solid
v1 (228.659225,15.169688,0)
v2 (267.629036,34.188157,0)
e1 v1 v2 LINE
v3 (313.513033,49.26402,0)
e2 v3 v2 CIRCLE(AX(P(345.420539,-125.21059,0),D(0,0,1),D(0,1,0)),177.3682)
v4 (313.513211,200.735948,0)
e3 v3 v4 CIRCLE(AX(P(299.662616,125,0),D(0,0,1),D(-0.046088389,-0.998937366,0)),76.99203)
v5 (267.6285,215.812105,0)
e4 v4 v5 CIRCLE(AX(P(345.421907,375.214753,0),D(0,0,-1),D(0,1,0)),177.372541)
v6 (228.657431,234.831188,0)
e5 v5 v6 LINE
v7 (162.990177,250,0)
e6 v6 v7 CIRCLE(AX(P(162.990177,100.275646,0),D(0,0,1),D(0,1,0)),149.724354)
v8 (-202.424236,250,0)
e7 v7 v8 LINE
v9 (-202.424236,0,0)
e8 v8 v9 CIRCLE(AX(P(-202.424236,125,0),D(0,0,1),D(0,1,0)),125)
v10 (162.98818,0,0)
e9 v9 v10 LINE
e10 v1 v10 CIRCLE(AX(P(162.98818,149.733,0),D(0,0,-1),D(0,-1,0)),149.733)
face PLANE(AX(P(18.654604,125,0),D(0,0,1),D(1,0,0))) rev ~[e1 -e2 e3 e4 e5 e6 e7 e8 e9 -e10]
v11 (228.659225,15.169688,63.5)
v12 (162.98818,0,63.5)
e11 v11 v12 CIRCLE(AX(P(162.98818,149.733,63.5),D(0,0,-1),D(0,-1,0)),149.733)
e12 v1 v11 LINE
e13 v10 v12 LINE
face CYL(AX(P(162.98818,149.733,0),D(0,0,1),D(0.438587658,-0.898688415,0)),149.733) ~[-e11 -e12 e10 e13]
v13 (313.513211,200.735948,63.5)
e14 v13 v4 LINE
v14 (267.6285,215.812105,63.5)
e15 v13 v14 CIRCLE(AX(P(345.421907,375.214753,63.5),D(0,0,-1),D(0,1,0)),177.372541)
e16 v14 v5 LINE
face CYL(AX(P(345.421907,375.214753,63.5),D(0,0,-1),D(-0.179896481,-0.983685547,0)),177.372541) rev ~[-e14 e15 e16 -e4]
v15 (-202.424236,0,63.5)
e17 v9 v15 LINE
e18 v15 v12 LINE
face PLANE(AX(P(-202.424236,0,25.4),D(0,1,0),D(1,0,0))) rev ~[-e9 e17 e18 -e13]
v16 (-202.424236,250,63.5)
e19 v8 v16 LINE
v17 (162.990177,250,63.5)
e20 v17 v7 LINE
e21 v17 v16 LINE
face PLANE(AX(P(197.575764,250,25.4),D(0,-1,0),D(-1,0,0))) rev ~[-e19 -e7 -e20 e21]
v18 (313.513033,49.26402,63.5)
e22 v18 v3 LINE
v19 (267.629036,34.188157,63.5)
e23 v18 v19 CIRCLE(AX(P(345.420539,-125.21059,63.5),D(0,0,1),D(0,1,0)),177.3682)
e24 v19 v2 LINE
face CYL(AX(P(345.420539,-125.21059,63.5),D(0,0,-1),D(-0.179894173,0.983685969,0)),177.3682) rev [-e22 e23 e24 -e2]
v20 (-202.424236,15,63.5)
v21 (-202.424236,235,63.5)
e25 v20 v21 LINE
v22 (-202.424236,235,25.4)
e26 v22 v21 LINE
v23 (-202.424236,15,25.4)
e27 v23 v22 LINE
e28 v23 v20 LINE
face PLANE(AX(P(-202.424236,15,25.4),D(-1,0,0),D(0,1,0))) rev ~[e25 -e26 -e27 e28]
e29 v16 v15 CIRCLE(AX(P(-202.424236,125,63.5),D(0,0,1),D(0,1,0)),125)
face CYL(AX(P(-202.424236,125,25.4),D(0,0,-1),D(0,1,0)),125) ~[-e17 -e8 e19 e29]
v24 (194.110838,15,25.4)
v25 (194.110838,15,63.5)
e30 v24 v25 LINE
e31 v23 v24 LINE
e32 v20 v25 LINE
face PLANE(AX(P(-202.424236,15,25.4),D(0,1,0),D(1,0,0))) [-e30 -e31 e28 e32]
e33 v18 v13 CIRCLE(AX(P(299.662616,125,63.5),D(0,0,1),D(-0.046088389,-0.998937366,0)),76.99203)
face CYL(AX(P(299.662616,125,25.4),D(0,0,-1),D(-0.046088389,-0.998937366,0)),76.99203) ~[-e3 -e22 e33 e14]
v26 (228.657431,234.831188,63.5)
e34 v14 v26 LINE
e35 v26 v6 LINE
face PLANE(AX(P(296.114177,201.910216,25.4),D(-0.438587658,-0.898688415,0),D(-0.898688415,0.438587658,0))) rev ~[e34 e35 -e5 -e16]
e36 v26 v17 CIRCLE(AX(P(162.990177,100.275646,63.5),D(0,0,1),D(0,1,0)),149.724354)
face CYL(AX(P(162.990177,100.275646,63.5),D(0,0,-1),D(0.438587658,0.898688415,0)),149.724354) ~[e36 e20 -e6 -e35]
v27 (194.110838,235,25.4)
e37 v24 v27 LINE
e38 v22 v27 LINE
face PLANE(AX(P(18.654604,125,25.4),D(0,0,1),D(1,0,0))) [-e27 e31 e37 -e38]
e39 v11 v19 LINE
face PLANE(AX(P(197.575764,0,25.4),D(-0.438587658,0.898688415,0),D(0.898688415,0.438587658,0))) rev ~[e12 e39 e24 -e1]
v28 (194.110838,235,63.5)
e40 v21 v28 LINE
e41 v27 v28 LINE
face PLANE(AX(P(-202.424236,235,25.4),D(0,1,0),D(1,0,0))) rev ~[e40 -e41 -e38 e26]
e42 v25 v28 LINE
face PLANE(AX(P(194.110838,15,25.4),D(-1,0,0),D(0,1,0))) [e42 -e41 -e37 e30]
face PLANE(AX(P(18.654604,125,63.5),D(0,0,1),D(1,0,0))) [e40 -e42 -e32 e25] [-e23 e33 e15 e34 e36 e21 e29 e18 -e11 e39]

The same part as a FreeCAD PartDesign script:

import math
import FreeCAD as App
import Part
import Sketcher
from FreeCAD import Vector
Q = App.Units.Quantity


def edges_at(feature, points):
    """Names of the edges that pass closest to the given points."""
    edges = feature.Shape.Edges
    near = lambda p: min(range(len(edges)), key=lambda i: edges[i].distToShape(Part.Vertex(*p))[0])
    return sorted({f"Edge{near(p) + 1}" for p in points})


def add_polygon(sketch, points):
    """Adds a closed chain of lines whose ends are joined by coincident constraints."""
    first, n = sketch.GeometryCount, len(points)
    for a, b in zip(points, points[1:] + points[:1]):
        sketch.addGeometry(Part.LineSegment(App.Vector(*a, 0), App.Vector(*b, 0)), False)
    for i in range(n):
        sketch.addConstraint(Sketcher.Constraint("Coincident", first + i, 2, first + (i + 1) % n, 1))

doc = App.newDocument("Part")
body = doc.addObject("PartDesign::Body", "Body")

sketch1 = body.newObject("Sketcher::SketchObject", "Sketch")
sketch1.AttachmentSupport = (doc.getObject("XY_Plane"), [""])
sketch1.MapMode = "FlatFace"
sketch1.addGeometry(Part.ArcOfCircle(Part.Circle(Vector(-202.424236, 125, 0), Vector(0, 0, 1), 125), math.radians(90), math.radians(270)), False)
sketch1.addGeometry(Part.LineSegment(Vector(-202.424236, 0, 0), Vector(197.575764, 0, 0)), False)
sketch1.addGeometry(Part.LineSegment(Vector(197.575764, 0, 0), Vector(296.114177, 48.089784, 0)), False)
sketch1.addGeometry(Part.ArcOfCircle(Part.Circle(Vector(299.662616, 125, 0), Vector(0, 0, 1), 76.99203), math.radians(-92.641606), math.radians(92.641606)), False)
sketch1.addGeometry(Part.LineSegment(Vector(296.114177, 201.910216, 0), Vector(197.575764, 250, 0)), False)
sketch1.addGeometry(Part.LineSegment(Vector(197.575764, 250, 0), Vector(-202.424236, 250, 0)), False)
sketch1.addConstraint(Sketcher.Constraint("Tangent", 0, 2, 1, 1))
sketch1.addConstraint(Sketcher.Constraint("Coincident", 1, 2, 2, 1))
sketch1.addConstraint(Sketcher.Constraint("Coincident", 2, 2, 3, 1))
sketch1.addConstraint(Sketcher.Constraint("Coincident", 3, 2, 4, 1))
sketch1.addConstraint(Sketcher.Constraint("Coincident", 4, 2, 5, 1))
sketch1.addConstraint(Sketcher.Constraint("Tangent", 5, 2, 0, 1))
sketch1.addConstraint(Sketcher.Constraint("Horizontal", 1))
sketch1.addConstraint(Sketcher.Constraint("Horizontal", 5))
sketch1.addConstraint(Sketcher.Constraint("PointOnObject", 0, 2, -1))
sketch1.addConstraint(Sketcher.Constraint("Horizontal", 0, 3, 3, 3))
sketch1.addConstraint(Sketcher.Constraint("Vertical", 2, 2, 3, 2))
sketch1.addConstraint(Sketcher.Constraint("Vertical", 1, 2, 4, 2))
sketch1.addConstraint(Sketcher.Constraint("Radius", 0, 125.0))
sketch1.addConstraint(Sketcher.Constraint("Radius", 3, 76.99203))
sketch1.addConstraint(Sketcher.Constraint("DistanceX", 1, 1, 1, 2, 400.0))
sketch1.addConstraint(Sketcher.Constraint("DistanceX", 0, 3, 3, 3, 502.086852))
sketch1.addConstraint(Sketcher.Constraint("DistanceX", 2, 2, 3, 3, 3.548439))
sketch1.addConstraint(Sketcher.Constraint("DistanceX", 0, 3, -1, 1, 202.424236))
pad1 = body.newObject("PartDesign::Pad", "Pad")
pad1.Profile = sketch1
pad1.Length = Q("1 in")

sketch2 = body.newObject("Sketcher::SketchObject", "Sketch001")
sketch2.AttachmentSupport = (doc.getObject("XY_Plane"), [""])
sketch2.MapMode = "FlatFace"
sketch2.AttachmentOffset = App.Placement(Vector(0, 0, 1 * 25.4), App.Rotation())
sketch2.addGeometry(Part.LineSegment(Vector(197.575764, 250, 0), Vector(-202.424236, 250, 0)), False)
sketch2.addGeometry(Part.ArcOfCircle(Part.Circle(Vector(-202.424236, 125, 0), Vector(0, 0, 1), 125), math.radians(90), math.radians(270)), False)
sketch2.addGeometry(Part.LineSegment(Vector(-202.424236, 0, 0), Vector(197.575764, 0, 0)), False)
sketch2.addGeometry(Part.LineSegment(Vector(197.575764, 0, 0), Vector(296.114177, 48.089784, 0)), False)
sketch2.addGeometry(Part.ArcOfCircle(Part.Circle(Vector(299.662616, 125, 0), Vector(0, 0, 1), 76.99203), math.radians(-92.641606), math.radians(92.641606)), False)
sketch2.addGeometry(Part.LineSegment(Vector(296.114177, 201.910216, 0), Vector(197.575764, 250, 0)), False)
add_polygon(sketch2, [(194.110838, 15), (-202.424236, 15), (-202.424236, 235), (194.110838, 235)])
sketch2.addConstraint(Sketcher.Constraint("Tangent", 0, 2, 1, 1))
sketch2.addConstraint(Sketcher.Constraint("Tangent", 1, 2, 2, 1))
sketch2.addConstraint(Sketcher.Constraint("Coincident", 2, 2, 3, 1))
sketch2.addConstraint(Sketcher.Constraint("Coincident", 3, 2, 4, 1))
sketch2.addConstraint(Sketcher.Constraint("Coincident", 4, 2, 5, 1))
sketch2.addConstraint(Sketcher.Constraint("Coincident", 5, 2, 0, 1))
sketch2.addConstraint(Sketcher.Constraint("Horizontal", 0))
sketch2.addConstraint(Sketcher.Constraint("Horizontal", 2))
sketch2.addConstraint(Sketcher.Constraint("Horizontal", 6))
sketch2.addConstraint(Sketcher.Constraint("Vertical", 7))
sketch2.addConstraint(Sketcher.Constraint("Horizontal", 8))
sketch2.addConstraint(Sketcher.Constraint("Vertical", 9))
sketch2.addConstraint(Sketcher.Constraint("PointOnObject", 1, 2, -1))
sketch2.addConstraint(Sketcher.Constraint("Horizontal", 1, 3, 4, 3))
sketch2.addConstraint(Sketcher.Constraint("Vertical", 3, 2, 4, 2))
sketch2.addConstraint(Sketcher.Constraint("Vertical", 2, 2, 5, 2))
sketch2.addConstraint(Sketcher.Constraint("Vertical", 1, 2, 6, 2))
sketch2.addConstraint(Sketcher.Constraint("Radius", 1, 125.0))
sketch2.addConstraint(Sketcher.Constraint("Radius", 4, 76.99203))
sketch2.addConstraint(Sketcher.Constraint("DistanceX", 0, 2, 0, 1, 400.0))
sketch2.addConstraint(Sketcher.Constraint("DistanceY", 7, 1, 7, 2, 220.0))
sketch2.addConstraint(Sketcher.Constraint("DistanceY", -1, 1, 6, 2, 15.0))
sketch2.addConstraint(Sketcher.Constraint("DistanceX", 6, 2, 6, 1, 396.535074))
sketch2.addConstraint(Sketcher.Constraint("DistanceX", -1, 1, 8, 2, 194.110838))
sketch2.addConstraint(Sketcher.Constraint("DistanceX", 1, 3, 4, 3, 502.086852))
sketch2.addConstraint(Sketcher.Constraint("DistanceX", 3, 2, 4, 3, 3.548439))
pad2 = body.newObject("PartDesign::Pad", "Pad001")
pad2.Profile = sketch2
pad2.Length = Q("1.5 in")
doc.recompute()

fillet = body.newObject("PartDesign::Fillet", "Fillet")
fillet.Base = (pad2, edges_at(pad2, [(296.114, 201.91, 31.75)]))
fillet.Radius = 177.372541
doc.recompute()

fillet2 = body.newObject("PartDesign::Fillet", "Fillet001")
fillet2.Base = (fillet, edges_at(fillet, [(197.576, 250, 31.75)]))
fillet2.Radius = 149.724354
doc.recompute()

fillet3 = body.newObject("PartDesign::Fillet", "Fillet002")
fillet3.Base = (fillet2, edges_at(fillet2, [(296.114, 48.09, 31.75)]))
fillet3.Radius = Q("6.983 in")
doc.recompute()

fillet4 = body.newObject("PartDesign::Fillet", "Fillet003")
fillet4.Base = (fillet3, edges_at(fillet3, [(197.576, 0, 31.75)]))
fillet4.Radius = Q("5.895 in")

doc.recompute()
